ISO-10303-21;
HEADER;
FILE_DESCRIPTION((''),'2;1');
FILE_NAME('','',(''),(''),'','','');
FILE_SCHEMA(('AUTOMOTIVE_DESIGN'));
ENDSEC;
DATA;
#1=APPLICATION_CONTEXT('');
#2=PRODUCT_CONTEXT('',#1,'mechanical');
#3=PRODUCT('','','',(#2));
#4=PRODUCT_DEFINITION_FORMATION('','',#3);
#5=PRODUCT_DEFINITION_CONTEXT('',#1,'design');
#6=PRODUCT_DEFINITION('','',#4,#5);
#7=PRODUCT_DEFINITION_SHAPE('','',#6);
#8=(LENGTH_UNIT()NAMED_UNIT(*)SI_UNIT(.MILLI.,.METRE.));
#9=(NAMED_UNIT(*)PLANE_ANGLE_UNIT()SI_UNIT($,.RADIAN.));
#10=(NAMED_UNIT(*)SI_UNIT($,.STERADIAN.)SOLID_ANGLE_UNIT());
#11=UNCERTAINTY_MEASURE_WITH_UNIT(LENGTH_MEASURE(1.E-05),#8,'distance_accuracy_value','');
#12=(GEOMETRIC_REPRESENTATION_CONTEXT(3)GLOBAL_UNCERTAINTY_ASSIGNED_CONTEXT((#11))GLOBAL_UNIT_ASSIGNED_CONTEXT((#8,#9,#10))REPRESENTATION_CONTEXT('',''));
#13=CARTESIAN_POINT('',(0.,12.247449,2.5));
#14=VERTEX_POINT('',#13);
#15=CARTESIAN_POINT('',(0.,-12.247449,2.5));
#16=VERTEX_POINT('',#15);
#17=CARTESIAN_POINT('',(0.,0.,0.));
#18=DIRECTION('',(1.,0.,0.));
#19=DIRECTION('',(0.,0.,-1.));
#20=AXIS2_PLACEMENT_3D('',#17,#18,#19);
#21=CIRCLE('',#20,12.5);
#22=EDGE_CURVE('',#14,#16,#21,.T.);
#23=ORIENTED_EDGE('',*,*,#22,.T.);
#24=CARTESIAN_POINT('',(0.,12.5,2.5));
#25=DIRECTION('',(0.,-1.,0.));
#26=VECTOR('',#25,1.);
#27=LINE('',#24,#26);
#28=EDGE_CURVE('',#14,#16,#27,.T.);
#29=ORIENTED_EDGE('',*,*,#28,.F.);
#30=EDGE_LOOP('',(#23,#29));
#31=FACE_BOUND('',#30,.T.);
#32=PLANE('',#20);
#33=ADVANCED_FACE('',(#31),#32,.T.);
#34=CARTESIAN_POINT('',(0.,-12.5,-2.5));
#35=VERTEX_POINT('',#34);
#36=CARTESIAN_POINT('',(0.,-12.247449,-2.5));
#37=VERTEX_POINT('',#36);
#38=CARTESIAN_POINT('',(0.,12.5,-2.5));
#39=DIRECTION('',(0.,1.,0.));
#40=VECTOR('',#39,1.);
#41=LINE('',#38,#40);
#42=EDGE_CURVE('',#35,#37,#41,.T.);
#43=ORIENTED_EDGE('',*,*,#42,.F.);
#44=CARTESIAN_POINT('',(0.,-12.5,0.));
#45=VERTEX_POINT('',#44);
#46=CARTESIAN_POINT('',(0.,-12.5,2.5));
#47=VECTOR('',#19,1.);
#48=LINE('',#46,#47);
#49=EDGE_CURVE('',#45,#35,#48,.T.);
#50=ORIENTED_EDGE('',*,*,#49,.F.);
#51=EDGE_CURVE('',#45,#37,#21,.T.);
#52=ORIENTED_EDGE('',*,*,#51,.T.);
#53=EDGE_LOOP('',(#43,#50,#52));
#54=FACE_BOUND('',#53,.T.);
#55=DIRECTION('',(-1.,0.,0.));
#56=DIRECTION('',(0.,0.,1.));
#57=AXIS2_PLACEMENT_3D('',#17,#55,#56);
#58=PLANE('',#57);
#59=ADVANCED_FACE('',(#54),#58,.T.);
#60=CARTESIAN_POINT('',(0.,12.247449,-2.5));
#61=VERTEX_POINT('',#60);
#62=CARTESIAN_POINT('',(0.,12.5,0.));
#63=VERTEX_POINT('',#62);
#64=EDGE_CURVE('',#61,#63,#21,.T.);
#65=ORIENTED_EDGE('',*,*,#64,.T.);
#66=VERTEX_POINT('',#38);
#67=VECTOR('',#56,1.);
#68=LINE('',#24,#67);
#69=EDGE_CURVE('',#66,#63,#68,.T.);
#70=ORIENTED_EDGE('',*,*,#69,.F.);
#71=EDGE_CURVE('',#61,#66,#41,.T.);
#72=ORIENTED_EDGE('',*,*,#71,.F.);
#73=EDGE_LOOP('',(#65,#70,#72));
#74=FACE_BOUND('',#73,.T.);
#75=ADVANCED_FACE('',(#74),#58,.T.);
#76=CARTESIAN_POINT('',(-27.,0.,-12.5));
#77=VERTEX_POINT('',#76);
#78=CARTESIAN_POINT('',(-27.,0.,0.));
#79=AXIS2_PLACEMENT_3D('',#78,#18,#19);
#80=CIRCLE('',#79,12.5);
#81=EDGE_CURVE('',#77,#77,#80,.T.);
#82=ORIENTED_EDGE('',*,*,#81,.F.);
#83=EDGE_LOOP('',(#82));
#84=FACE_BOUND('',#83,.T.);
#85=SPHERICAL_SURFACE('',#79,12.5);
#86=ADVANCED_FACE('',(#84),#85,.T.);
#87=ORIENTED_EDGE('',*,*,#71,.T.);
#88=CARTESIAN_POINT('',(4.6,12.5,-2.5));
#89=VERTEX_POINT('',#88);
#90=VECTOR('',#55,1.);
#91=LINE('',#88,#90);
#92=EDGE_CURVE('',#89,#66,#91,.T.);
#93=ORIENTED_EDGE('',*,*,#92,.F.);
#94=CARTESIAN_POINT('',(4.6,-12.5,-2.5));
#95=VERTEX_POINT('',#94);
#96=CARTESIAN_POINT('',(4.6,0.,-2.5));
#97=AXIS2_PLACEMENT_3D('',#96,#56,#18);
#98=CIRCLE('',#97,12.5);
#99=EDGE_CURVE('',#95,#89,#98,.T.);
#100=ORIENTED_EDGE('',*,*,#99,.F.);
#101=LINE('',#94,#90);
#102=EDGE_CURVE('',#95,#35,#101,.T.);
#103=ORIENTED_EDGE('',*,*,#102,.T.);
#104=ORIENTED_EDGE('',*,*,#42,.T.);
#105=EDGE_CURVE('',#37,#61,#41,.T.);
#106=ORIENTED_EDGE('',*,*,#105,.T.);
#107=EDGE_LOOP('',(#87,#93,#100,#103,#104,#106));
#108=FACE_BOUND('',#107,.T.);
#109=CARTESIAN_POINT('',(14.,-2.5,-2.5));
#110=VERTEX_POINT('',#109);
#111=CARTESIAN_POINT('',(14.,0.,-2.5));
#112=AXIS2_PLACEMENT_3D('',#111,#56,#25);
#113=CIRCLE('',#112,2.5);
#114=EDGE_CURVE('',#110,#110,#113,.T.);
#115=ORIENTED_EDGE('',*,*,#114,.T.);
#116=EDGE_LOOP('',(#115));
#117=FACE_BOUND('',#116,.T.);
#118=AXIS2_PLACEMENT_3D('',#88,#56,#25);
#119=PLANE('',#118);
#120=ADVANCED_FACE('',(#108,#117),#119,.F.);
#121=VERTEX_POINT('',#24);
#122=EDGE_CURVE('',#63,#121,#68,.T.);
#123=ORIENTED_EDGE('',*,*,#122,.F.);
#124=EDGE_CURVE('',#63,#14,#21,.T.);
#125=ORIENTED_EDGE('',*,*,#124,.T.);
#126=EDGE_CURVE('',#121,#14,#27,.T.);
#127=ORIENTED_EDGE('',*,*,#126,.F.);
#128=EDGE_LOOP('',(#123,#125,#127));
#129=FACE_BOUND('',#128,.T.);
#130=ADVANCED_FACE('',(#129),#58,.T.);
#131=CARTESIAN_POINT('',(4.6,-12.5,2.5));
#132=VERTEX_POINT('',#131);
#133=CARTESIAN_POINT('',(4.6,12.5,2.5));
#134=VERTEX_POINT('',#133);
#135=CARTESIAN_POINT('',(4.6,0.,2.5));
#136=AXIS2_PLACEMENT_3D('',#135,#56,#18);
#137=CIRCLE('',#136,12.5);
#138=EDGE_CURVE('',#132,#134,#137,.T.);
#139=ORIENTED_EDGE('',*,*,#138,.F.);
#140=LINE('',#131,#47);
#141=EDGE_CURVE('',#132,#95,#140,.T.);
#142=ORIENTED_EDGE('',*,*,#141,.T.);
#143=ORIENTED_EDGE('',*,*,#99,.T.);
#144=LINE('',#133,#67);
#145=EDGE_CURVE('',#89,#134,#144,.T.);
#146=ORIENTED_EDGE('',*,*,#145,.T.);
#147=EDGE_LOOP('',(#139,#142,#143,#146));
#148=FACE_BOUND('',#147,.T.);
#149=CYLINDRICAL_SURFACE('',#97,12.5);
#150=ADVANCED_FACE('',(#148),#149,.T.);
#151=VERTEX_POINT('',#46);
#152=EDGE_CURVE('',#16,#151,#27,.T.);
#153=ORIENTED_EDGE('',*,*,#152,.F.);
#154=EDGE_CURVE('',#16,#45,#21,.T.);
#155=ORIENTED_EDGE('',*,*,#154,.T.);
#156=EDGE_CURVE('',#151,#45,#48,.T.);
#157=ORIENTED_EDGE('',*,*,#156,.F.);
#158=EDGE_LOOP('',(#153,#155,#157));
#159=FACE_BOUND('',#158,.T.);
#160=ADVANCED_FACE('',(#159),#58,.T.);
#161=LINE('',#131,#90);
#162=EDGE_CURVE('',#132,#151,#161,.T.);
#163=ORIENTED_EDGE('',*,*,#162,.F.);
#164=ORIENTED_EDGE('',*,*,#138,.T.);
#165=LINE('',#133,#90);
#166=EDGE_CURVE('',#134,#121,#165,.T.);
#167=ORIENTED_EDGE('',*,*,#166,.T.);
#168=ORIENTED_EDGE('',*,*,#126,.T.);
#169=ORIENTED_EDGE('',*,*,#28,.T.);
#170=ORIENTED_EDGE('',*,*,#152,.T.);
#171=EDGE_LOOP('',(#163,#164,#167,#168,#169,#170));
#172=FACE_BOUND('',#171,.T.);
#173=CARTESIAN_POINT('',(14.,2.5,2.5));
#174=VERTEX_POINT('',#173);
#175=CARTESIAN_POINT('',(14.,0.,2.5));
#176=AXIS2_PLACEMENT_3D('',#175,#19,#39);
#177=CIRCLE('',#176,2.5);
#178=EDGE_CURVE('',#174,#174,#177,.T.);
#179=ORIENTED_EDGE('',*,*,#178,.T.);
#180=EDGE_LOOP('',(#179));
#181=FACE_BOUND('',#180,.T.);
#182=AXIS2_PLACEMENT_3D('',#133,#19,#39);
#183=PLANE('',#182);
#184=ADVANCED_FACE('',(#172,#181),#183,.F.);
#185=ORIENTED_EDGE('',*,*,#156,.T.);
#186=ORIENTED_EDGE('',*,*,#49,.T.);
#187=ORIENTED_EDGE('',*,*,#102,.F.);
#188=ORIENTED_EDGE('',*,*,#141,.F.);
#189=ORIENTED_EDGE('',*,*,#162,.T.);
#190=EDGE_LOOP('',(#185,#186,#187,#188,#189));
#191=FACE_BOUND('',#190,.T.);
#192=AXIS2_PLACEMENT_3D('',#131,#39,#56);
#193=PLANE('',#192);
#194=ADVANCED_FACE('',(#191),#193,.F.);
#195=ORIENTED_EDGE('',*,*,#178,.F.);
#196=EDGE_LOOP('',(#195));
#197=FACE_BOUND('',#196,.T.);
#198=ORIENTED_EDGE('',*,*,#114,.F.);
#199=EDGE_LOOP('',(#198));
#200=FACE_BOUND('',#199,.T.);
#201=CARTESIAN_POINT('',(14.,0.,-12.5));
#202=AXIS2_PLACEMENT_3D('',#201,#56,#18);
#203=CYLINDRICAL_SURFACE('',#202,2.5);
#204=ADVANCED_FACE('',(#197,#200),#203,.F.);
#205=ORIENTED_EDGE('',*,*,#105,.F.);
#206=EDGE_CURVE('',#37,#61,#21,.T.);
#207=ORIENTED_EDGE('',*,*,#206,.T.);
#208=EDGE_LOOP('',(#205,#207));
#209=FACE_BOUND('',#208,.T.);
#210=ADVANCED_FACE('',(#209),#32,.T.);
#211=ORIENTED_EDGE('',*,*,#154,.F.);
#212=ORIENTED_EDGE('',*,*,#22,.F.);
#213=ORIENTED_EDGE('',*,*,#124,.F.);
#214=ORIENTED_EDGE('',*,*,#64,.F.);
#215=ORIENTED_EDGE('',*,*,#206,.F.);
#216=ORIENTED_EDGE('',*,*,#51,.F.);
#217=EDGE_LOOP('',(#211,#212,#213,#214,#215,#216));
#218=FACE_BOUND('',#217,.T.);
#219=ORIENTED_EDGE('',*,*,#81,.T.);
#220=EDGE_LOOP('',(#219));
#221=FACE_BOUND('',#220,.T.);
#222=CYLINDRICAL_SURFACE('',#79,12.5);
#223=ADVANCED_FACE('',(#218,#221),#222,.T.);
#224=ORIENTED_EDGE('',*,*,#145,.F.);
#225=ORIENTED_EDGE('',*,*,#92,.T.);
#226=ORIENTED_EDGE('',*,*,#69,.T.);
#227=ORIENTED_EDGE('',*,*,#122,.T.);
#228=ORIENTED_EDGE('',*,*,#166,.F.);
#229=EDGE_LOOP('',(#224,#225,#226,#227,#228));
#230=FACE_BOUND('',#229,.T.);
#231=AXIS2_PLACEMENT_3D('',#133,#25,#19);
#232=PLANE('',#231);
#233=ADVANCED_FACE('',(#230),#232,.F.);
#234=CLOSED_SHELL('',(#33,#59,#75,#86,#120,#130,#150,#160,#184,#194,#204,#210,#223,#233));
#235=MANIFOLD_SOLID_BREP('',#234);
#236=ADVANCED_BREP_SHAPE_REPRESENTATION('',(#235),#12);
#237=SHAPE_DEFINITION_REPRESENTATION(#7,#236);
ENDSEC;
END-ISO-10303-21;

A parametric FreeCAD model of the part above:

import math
import FreeCAD as App
import Part
import Sketcher

V = App.Vector
Q = App.Units.Quantity

doc = App.newDocument("Part")
body = doc.addObject("PartDesign::Body", "Body")

# Sketch on YZ plane
sketch1 = body.newObject("Sketcher::SketchObject", "Sketch")
sketch1.AttachmentSupport = (doc.getObject("YZ_Plane"), [""])
sketch1.MapMode = "FlatFace"
sketch1.addGeometry(Part.Circle(V(0, 0, 0), V(0, 0, 1), 12), False)
sketch1.addConstraint(Sketcher.Constraint("Coincident", 0, 3, -1, 1))
sketch1.addConstraint(Sketcher.Constraint("Diameter", 0, Q("25 mm")))
pad1 = body.newObject("PartDesign::Pad", "Pad")
pad1.Profile = sketch1
pad1.Length = 27
pad1.Reversed = True

# Sketch on YZ plane
sketch2 = body.newObject("Sketcher::SketchObject", "Sketch001")
sketch2.AttachmentSupport = (doc.getObject("YZ_Plane"), [""])
sketch2.MapMode = "FlatFace"
sketch2.addGeometry(Part.LineSegment(V(12, 2, 0), V(-12, 2, 0)), False)
sketch2.addGeometry(Part.LineSegment(V(-12, 2, 0), V(-12, -2, 0)), False)
sketch2.addGeometry(Part.LineSegment(V(-12, -2, 0), V(12, -2, 0)), False)
sketch2.addGeometry(Part.LineSegment(V(12, -2, 0), V(12, 2, 0)), False)
sketch2.addConstraint(Sketcher.Constraint("Coincident", 0, 2, 1, 1))
sketch2.addConstraint(Sketcher.Constraint("Coincident", 1, 2, 2, 1))
sketch2.addConstraint(Sketcher.Constraint("Coincident", 2, 2, 3, 1))
sketch2.addConstraint(Sketcher.Constraint("Coincident", 3, 2, 0, 1))
sketch2.addConstraint(Sketcher.Constraint("Horizontal", 0))
sketch2.addConstraint(Sketcher.Constraint("Vertical", 1))
sketch2.addConstraint(Sketcher.Constraint("Horizontal", 2))
sketch2.addConstraint(Sketcher.Constraint("Vertical", 3))
sketch2.addConstraint(Sketcher.Constraint("Symmetric", 0, 2, 2, 2, -1, 1))
sketch2.addConstraint(Sketcher.Constraint("DistanceX", 0, 2, 0, 1, Q("25 mm")))
sketch2.addConstraint(Sketcher.Constraint("DistanceY", 1, 2, 1, 1, Q("5 mm")))
pad2 = body.newObject("PartDesign::Pad", "Pad001")
pad2.Profile = sketch2
pad2.Length = 4.6

# Sketch on XY plane
sketch3 = body.newObject("Sketcher::SketchObject", "Sketch002")
sketch3.AttachmentSupport = (doc.getObject("XY_Plane"), [""])
sketch3.MapMode = "FlatFace"
sketch3.AttachmentOffset = App.Placement(V(0, 0, 2.5), App.Rotation())
sketch3.addGeometry(Part.LineSegment(V(5, 12, 0), V(5, -12, 0)), False)
sketch3.addGeometry(Part.ArcOfCircle(Part.Circle(V(5, 0, 0), V(0, 0, 1), 12), math.radians(-90), math.radians(90)), False)
sketch3.addConstraint(Sketcher.Constraint("Coincident", 0, 1, 1, 2))
sketch3.addConstraint(Sketcher.Constraint("Coincident", 1, 1, 0, 2))
sketch3.addConstraint(Sketcher.Constraint("Vertical", 0))
sketch3.addConstraint(Sketcher.Constraint("PointOnObject", 1, 3, -1))
sketch3.addConstraint(Sketcher.Constraint("Vertical", 1, 3, 0, 1))
sketch3.addConstraint(Sketcher.Constraint("Radius", 1, Q("12.5 mm")))
sketch3.addConstraint(Sketcher.Constraint("DistanceX", -1, 1, 1, 3, Q("4.6 mm")))
pad3 = body.newObject("PartDesign::Pad", "Pad002")
pad3.Profile = sketch3
pad3.Length = 5
pad3.Reversed = True

# Sketch on XY plane
sketch4 = body.newObject("Sketcher::SketchObject", "Sketch003")
sketch4.AttachmentSupport = (doc.getObject("XY_Plane"), [""])
sketch4.MapMode = "FlatFace"
sketch4.AttachmentOffset = App.Placement(V(0, 0, 2.5), App.Rotation())
sketch4.addGeometry(Part.Circle(V(14, 0, 0), V(0, 0, 1), 2.5), False)
sketch4.addConstraint(Sketcher.Constraint("PointOnObject", 0, 3, -1))
sketch4.addConstraint(Sketcher.Constraint("Diameter", 0, Q("5 mm")))
sketch4.addConstraint(Sketcher.Constraint("DistanceX", -1, 1, 0, 3, Q("14 mm")))
pocket1 = body.newObject("PartDesign::Pocket", "Pocket")
pocket1.Profile = sketch4
pocket1.Type = "ThroughAll"
pocket1.Midplane = True

# Sketch on YZ plane
sketch5 = body.newObject("Sketcher::SketchObject", "Sketch004")
sketch5.AttachmentSupport = (doc.getObject("YZ_Plane"), [""])
sketch5.MapMode = "FlatFace"
sketch5.AttachmentOffset = App.Placement(V(0, 0, -27), App.Rotation())
sketch5.addGeometry(Part.LineSegment(V(12, 0, 0), V(-12, 0, 0)), False)
sketch5.addGeometry(Part.ArcOfCircle(Part.Circle(V(0, 0, 0), V(0, 0, 1), 12), math.radians(0), math.radians(180)), False)
sketch5.addConstraint(Sketcher.Constraint("Coincident", 0, 1, 1, 1))
sketch5.addConstraint(Sketcher.Constraint("Coincident", 1, 2, 0, 2))
sketch5.addConstraint(Sketcher.Constraint("Horizontal", 0))
sketch5.addConstraint(Sketcher.Constraint("Coincident", 1, 3, -1, 1))
sketch5.addConstraint(Sketcher.Constraint("PointOnObject", 0, 1, -1))
sketch5.addConstraint(Sketcher.Constraint("Radius", 1, Q("12.5 mm")))
revolution = body.newObject("PartDesign::Revolution", "Revolution")
revolution.Profile = sketch5
revolution.ReferenceAxis = (sketch5, ["H_Axis"])
revolution.Angle = 180
revolution.Reversed = True

doc.recompute()
